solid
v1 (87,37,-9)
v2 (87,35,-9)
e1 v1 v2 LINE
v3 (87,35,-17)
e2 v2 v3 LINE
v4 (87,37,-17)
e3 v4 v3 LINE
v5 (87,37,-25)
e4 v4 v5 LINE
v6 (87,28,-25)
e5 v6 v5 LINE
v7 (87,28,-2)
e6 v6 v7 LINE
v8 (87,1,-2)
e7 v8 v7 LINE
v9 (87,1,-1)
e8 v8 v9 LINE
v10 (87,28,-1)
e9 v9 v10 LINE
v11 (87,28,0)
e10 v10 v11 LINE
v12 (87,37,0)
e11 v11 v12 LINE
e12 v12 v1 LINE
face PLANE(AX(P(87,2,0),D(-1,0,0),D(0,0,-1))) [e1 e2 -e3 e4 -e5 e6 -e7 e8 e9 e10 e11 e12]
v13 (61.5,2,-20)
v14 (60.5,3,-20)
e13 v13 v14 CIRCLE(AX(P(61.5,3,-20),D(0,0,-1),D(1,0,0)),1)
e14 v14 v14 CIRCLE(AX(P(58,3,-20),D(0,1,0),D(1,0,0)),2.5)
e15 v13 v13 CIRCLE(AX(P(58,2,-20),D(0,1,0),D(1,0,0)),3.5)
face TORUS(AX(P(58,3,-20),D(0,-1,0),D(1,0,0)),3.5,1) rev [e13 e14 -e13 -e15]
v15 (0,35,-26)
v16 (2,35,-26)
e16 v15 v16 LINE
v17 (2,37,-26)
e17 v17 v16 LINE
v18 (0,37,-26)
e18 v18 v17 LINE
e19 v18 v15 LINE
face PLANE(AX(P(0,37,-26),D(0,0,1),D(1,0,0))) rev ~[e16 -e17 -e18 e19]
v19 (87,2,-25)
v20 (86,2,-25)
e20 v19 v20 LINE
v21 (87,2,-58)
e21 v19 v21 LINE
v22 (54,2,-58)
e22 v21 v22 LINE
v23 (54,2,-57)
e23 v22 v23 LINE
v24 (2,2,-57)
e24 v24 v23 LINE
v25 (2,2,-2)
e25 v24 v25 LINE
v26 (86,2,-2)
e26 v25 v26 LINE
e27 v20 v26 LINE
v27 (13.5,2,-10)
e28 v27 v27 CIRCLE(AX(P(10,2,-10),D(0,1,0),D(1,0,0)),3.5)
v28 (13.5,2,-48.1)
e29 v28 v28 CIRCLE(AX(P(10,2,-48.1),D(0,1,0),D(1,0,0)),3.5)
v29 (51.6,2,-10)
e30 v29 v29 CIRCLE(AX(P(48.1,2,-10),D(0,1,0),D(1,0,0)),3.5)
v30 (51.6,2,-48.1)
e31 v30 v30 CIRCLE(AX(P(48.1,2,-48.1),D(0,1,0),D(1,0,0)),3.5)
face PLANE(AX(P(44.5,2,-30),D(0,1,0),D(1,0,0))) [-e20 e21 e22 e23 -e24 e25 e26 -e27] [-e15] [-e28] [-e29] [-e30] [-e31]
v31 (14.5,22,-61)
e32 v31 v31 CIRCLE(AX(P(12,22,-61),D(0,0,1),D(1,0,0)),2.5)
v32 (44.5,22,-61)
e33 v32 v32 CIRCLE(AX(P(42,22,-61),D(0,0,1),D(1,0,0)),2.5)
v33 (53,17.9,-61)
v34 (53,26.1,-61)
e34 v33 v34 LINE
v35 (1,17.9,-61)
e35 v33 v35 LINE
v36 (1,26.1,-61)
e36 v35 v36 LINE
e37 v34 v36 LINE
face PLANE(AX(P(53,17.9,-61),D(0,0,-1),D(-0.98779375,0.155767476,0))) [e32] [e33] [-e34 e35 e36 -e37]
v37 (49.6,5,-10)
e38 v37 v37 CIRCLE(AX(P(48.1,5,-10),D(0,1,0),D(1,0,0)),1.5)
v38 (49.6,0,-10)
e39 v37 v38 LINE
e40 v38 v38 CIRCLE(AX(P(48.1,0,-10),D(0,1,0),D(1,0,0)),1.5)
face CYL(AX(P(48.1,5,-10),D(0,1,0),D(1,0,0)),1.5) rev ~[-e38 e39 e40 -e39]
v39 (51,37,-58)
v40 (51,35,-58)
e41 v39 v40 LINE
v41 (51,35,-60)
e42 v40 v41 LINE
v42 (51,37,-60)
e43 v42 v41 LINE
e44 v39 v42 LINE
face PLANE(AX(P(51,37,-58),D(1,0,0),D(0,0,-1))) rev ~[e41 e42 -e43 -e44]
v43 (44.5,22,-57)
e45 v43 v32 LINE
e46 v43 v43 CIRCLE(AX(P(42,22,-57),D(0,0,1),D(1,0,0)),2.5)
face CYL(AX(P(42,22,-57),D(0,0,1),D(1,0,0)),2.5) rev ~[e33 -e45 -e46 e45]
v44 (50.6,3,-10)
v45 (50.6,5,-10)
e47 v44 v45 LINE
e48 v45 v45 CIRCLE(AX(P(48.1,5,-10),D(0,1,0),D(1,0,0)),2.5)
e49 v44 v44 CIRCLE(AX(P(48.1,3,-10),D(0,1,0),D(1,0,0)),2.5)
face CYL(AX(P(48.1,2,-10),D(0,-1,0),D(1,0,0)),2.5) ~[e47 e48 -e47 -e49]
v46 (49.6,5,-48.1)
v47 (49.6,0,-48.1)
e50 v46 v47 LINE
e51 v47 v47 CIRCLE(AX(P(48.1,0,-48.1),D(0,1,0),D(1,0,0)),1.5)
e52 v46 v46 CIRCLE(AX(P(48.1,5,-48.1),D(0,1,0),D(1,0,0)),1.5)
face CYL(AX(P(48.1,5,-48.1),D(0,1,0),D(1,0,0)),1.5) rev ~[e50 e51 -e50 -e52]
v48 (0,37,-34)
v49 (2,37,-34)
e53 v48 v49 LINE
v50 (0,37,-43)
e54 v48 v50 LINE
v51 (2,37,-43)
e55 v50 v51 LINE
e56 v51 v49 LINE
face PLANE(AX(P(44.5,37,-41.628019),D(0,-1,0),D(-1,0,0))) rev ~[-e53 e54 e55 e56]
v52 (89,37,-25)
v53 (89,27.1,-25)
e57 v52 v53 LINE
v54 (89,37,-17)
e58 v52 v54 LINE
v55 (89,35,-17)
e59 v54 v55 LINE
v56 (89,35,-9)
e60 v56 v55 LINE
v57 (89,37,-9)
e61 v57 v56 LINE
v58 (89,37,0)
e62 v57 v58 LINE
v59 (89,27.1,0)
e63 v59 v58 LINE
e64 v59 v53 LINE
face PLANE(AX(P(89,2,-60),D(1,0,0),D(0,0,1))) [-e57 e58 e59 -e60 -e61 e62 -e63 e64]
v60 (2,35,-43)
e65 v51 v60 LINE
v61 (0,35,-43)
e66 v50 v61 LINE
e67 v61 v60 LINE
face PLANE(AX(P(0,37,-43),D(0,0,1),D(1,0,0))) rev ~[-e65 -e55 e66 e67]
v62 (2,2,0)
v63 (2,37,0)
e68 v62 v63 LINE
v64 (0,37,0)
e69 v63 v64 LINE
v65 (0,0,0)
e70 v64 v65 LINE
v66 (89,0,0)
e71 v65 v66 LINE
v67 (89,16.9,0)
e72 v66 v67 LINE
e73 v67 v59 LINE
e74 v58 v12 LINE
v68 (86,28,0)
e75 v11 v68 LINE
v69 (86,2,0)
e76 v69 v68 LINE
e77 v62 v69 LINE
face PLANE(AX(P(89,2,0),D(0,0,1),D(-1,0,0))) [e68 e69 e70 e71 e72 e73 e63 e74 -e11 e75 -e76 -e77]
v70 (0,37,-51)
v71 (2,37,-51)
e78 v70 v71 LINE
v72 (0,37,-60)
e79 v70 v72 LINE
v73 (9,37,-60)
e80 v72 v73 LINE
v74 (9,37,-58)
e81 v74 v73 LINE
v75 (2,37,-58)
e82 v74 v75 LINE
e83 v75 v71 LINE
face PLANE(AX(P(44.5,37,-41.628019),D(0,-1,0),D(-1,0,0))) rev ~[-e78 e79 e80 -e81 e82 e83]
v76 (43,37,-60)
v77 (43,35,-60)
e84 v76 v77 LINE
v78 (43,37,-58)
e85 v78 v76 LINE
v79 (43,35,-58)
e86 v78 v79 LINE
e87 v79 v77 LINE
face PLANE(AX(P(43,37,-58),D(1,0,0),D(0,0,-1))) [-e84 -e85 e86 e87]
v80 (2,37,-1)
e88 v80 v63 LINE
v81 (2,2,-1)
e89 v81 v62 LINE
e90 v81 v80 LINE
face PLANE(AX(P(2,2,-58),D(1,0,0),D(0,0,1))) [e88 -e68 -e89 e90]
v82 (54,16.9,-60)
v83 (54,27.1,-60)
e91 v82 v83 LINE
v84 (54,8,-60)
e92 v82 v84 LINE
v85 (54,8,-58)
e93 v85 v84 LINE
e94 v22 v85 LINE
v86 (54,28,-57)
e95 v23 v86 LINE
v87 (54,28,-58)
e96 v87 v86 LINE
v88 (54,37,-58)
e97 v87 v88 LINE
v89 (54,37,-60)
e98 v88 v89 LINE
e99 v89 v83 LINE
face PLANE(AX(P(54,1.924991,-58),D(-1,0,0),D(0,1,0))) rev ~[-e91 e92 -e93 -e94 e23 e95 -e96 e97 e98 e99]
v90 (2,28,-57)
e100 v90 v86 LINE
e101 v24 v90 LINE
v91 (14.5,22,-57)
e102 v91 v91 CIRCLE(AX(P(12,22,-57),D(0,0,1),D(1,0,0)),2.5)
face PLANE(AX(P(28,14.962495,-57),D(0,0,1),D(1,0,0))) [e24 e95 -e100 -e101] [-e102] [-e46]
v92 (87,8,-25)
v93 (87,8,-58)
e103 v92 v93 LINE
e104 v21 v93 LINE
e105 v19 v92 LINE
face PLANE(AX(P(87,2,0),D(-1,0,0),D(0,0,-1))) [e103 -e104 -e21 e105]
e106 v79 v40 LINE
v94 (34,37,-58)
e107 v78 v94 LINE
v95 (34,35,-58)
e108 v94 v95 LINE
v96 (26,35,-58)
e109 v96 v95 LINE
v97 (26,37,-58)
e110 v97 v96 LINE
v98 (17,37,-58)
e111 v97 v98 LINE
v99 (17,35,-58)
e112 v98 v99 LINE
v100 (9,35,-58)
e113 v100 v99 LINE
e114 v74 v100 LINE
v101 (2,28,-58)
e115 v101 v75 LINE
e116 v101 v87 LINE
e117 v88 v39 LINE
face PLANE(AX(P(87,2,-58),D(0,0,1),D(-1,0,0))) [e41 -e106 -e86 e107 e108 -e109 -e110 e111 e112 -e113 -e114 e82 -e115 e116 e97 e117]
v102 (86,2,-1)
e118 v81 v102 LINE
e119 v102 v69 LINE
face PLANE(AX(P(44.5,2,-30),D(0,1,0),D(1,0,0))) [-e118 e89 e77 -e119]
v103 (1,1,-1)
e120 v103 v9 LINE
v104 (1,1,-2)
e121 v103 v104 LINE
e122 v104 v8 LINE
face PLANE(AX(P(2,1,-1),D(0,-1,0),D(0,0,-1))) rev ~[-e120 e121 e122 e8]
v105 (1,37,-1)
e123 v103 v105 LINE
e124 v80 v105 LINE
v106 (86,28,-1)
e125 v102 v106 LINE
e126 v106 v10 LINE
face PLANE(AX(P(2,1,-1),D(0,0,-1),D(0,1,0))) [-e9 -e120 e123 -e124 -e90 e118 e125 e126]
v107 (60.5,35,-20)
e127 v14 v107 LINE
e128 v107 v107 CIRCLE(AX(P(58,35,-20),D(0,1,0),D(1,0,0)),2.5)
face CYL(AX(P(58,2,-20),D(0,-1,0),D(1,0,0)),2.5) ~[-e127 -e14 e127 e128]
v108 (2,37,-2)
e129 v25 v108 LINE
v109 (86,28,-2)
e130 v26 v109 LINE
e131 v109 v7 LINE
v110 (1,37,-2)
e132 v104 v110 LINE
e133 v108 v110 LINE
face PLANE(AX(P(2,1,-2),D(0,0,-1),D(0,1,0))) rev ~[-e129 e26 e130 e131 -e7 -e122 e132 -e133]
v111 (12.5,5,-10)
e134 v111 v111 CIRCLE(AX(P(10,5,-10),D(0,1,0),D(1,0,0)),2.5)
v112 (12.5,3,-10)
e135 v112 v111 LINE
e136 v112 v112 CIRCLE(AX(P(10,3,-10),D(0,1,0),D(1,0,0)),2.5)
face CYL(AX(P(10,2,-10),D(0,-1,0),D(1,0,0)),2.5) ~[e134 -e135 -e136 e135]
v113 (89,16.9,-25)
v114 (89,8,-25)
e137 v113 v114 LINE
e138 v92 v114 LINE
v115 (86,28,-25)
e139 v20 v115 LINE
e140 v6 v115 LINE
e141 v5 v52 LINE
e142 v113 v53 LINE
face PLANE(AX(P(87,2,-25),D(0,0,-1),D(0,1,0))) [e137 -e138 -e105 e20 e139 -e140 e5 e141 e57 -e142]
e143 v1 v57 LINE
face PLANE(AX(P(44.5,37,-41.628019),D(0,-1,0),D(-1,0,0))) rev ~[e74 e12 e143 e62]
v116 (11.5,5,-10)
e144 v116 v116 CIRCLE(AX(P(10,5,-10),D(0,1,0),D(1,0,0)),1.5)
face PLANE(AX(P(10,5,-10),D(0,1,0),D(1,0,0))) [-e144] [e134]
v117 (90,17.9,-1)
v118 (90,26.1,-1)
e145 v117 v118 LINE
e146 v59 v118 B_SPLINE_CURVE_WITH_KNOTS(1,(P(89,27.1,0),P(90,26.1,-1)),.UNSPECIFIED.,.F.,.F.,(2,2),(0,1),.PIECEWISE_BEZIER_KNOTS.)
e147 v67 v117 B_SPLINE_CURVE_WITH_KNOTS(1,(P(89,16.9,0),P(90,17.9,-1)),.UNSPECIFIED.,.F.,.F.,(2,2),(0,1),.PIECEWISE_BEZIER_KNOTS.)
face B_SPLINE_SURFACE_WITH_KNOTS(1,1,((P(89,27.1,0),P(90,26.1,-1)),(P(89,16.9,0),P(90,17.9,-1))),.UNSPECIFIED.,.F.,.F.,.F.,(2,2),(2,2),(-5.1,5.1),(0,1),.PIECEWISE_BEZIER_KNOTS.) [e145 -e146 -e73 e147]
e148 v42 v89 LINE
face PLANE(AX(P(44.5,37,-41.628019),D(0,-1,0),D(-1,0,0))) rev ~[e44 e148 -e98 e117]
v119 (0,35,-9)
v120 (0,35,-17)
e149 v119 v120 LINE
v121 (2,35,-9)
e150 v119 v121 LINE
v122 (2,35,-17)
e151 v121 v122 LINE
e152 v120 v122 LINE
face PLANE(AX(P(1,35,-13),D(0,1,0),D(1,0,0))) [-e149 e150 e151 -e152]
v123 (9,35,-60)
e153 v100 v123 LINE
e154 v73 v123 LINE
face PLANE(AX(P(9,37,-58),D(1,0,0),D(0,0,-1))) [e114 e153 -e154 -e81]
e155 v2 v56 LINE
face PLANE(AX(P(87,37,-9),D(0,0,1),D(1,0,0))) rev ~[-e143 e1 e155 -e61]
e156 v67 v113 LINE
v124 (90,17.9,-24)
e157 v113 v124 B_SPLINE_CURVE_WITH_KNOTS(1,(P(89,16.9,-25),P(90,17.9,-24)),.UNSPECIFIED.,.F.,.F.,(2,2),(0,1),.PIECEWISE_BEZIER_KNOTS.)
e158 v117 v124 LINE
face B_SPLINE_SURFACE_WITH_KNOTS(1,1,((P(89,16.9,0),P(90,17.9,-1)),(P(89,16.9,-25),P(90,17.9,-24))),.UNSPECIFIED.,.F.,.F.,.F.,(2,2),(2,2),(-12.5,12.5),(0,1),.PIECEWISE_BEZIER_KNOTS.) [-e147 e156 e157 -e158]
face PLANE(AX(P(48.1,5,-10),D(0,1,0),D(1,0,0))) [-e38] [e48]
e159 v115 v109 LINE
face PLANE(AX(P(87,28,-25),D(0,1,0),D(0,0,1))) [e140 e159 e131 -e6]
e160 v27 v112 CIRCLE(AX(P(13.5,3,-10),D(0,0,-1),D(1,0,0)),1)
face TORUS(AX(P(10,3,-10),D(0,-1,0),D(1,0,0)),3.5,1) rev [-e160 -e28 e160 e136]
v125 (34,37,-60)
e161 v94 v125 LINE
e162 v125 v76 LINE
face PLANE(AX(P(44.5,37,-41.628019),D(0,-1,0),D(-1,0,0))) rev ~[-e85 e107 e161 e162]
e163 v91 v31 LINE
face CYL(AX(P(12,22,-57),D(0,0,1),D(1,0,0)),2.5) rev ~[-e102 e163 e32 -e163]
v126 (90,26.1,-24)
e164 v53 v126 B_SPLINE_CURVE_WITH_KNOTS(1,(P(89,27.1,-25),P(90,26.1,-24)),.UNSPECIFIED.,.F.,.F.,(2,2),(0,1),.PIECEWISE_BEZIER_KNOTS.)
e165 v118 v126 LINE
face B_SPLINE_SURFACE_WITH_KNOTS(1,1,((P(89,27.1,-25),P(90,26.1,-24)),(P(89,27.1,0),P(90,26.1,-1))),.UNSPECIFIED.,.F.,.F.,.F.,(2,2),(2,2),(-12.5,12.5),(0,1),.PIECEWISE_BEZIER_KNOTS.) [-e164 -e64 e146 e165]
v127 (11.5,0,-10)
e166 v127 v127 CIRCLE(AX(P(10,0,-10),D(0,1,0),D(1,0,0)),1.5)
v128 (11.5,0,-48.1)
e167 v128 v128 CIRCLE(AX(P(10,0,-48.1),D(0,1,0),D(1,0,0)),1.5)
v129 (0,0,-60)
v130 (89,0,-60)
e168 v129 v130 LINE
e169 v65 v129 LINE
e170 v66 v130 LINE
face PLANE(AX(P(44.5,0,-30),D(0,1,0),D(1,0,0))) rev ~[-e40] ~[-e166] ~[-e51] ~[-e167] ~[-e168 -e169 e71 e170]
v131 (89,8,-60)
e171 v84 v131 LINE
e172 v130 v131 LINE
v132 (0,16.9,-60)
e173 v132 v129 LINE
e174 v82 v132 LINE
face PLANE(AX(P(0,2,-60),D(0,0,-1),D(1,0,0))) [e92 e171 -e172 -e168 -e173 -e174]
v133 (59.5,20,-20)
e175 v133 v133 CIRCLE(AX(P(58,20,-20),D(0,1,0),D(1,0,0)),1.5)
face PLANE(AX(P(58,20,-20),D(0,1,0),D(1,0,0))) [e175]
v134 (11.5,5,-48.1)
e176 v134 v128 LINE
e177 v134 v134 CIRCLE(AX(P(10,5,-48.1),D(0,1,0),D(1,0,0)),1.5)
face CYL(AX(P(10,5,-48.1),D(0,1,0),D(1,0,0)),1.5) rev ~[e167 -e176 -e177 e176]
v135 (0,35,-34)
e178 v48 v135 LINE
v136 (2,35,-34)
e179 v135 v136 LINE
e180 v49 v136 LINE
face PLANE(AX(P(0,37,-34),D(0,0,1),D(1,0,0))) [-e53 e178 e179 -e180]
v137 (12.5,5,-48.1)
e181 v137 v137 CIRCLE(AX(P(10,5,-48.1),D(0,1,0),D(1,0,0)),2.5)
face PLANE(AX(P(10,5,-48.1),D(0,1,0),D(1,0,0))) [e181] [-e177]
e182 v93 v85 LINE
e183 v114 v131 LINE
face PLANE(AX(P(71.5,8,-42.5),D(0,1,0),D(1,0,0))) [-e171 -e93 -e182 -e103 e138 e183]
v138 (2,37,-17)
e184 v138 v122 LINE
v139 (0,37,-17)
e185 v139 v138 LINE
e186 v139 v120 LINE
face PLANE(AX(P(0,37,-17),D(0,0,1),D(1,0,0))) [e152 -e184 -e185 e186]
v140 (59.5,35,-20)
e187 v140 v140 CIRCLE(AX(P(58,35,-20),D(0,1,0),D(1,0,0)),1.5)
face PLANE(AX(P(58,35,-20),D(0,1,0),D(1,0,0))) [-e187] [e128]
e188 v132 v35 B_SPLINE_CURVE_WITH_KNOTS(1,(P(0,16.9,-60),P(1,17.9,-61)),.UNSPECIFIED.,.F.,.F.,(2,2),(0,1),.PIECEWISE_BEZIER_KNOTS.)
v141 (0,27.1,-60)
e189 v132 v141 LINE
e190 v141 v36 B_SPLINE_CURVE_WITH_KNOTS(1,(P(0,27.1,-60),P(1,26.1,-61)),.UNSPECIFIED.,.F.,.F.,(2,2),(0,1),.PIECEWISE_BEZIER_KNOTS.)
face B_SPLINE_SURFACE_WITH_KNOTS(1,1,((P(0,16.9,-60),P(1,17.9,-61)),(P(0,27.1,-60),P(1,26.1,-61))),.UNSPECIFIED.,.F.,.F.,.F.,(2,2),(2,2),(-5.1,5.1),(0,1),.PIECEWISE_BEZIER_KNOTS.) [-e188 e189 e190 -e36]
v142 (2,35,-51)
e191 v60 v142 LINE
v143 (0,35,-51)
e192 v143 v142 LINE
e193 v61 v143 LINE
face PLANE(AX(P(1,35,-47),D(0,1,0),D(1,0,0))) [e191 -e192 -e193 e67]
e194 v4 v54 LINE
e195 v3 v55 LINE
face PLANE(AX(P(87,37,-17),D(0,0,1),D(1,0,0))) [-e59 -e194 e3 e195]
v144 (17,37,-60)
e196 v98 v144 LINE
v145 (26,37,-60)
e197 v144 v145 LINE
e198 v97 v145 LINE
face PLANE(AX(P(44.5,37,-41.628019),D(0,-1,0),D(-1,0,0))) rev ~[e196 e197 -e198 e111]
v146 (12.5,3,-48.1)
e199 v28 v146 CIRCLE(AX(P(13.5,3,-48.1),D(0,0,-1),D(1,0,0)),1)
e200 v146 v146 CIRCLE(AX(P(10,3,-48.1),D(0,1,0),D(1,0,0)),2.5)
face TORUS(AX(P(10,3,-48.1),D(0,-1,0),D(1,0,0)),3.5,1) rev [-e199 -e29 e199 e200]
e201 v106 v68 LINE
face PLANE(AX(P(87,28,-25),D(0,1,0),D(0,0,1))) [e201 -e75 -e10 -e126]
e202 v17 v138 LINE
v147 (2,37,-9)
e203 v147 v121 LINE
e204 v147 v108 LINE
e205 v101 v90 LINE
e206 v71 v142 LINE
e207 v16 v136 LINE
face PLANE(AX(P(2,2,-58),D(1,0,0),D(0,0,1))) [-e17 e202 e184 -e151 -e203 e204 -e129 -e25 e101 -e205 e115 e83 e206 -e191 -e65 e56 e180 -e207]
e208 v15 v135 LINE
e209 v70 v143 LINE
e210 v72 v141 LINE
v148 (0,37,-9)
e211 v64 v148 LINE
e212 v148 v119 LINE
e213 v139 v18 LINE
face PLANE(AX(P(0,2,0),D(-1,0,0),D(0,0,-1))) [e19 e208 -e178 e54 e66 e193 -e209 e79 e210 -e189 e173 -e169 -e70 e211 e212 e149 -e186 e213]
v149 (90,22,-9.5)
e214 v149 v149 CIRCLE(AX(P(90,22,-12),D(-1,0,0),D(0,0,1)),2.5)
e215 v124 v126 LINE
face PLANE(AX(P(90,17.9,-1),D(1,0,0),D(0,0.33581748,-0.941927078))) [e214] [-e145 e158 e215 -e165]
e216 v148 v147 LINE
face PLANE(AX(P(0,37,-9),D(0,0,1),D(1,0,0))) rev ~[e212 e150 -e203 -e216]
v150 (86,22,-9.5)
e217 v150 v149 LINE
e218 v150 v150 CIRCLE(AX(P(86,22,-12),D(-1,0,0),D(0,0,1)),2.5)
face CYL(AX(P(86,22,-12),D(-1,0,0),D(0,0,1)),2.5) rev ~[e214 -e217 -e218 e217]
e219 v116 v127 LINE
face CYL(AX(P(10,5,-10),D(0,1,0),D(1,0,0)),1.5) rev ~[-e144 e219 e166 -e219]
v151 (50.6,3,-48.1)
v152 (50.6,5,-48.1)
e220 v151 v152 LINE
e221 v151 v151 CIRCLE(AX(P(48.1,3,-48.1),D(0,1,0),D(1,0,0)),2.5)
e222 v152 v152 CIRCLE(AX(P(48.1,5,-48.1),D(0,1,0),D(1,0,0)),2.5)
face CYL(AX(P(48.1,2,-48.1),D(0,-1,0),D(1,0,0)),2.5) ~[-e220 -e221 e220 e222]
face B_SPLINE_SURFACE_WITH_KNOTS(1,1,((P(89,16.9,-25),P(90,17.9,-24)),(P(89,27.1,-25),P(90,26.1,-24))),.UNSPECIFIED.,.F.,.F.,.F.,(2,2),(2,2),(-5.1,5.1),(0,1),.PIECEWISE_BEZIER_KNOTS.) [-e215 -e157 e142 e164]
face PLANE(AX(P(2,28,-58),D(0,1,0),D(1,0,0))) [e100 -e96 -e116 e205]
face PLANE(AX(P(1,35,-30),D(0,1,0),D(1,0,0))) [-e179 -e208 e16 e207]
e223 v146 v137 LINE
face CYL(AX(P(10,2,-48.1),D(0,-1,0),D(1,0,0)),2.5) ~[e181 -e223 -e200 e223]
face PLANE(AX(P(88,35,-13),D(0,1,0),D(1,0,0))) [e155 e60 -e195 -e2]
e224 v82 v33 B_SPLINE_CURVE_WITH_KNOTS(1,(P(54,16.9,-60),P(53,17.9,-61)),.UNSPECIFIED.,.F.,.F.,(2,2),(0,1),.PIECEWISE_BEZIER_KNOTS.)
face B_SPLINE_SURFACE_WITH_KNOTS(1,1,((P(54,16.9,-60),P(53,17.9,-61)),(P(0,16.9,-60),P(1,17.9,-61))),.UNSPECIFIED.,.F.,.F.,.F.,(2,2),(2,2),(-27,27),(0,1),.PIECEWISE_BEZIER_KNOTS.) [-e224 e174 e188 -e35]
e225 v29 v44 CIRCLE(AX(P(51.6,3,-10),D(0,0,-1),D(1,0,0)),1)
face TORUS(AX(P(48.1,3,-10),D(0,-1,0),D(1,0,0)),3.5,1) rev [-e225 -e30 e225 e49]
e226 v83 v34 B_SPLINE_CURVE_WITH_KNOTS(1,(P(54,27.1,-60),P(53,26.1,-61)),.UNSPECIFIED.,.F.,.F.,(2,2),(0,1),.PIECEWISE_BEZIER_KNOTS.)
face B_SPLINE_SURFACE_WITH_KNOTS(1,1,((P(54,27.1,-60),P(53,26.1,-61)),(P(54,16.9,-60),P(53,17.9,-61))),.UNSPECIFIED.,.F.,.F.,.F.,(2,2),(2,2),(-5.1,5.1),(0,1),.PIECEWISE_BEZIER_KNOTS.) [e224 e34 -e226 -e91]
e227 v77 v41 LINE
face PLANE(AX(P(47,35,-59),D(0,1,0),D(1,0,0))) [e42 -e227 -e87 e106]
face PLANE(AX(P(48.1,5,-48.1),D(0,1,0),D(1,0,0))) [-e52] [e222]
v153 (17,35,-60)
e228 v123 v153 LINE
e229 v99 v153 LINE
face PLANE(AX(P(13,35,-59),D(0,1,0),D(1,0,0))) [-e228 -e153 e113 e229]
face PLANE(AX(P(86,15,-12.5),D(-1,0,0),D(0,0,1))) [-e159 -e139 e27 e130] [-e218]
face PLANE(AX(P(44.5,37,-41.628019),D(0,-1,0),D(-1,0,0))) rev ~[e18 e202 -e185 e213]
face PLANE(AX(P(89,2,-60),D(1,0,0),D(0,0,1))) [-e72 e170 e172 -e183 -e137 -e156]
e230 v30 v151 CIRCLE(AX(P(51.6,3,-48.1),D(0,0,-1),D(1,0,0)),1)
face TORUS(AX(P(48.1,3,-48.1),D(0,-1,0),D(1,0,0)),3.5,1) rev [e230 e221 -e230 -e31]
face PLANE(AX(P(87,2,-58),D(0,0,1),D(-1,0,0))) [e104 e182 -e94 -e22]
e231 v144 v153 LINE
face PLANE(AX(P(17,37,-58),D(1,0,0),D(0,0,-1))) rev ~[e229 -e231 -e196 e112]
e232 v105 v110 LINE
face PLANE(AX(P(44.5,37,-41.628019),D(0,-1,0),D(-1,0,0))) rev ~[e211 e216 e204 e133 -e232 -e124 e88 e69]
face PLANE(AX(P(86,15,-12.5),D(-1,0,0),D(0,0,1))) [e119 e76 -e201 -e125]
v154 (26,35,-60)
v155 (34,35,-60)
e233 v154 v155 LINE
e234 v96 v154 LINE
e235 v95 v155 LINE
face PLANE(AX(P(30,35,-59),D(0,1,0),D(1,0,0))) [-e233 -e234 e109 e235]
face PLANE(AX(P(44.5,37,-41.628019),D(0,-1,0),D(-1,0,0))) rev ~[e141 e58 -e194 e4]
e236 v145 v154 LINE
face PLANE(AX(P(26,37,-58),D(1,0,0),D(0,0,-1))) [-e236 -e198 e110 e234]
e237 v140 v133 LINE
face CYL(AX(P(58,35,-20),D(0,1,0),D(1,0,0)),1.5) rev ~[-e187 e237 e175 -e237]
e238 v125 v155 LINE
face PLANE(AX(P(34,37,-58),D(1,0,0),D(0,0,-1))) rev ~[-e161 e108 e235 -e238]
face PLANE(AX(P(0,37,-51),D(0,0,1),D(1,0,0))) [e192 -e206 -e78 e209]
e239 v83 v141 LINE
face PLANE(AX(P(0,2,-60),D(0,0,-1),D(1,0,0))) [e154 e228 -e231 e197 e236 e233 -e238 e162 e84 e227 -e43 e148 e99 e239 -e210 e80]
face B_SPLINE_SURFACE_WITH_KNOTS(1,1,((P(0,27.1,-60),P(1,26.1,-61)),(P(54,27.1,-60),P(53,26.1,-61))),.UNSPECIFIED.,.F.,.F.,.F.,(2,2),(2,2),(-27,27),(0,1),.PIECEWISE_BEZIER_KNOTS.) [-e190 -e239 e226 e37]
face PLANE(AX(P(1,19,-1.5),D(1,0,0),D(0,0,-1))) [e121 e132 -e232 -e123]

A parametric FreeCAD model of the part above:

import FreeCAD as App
import Part
import Sketcher

V = App.Vector
Q = App.Units.Quantity


def edges_at(feature, points):
    """Names of the edges that pass closest to the given points."""
    edges = feature.Shape.Edges
    near = lambda p: min(range(len(edges)), key=lambda i: edges[i].distToShape(Part.Vertex(*p))[0])
    return sorted({f"Edge{near(p) + 1}" for p in points})

doc = App.newDocument("Part")
body = doc.addObject("PartDesign::Body", "Body")

# Sketch on XZ plane
sketch1 = body.newObject("Sketcher::SketchObject", "Sketch")
sketch1.AttachmentSupport = (doc.getObject("XZ_Plane"), [""])
sketch1.MapMode = "FlatFace"
sketch1.addGeometry([
    Part.LineSegment(V(0, -60, 0), V(0, 0, 0)),
    Part.LineSegment(V(0, 0, 0), V(89, 0, 0)),
    Part.LineSegment(V(89, 0, 0), V(89, -60, 0)),
    Part.LineSegment(V(89, -60, 0), V(0, -60, 0)),
], False)
sketch1.addConstraint([
    Sketcher.Constraint("Coincident", 0, 2, 1, 1),
    Sketcher.Constraint("Coincident", 1, 2, 2, 1),
    Sketcher.Constraint("Coincident", 2, 2, 3, 1),
    Sketcher.Constraint("Coincident", 3, 2, 0, 1),
    Sketcher.Constraint("Vertical", 0),
    Sketcher.Constraint("Horizontal", 1),
    Sketcher.Constraint("Vertical", 2),
    Sketcher.Constraint("Horizontal", 3),
    Sketcher.Constraint("Coincident", 0, 2, -1, 1),
    Sketcher.Constraint("DistanceX", 1, 1, 1, 2, Q("89 mm")),
    Sketcher.Constraint("DistanceY", 0, 1, 0, 2, Q("60 mm")),
])
pad1 = body.newObject("PartDesign::Pad", "Pad")
pad1.Profile = sketch1
pad1.Length = 2
pad1.Reversed = True

# Sketch on XZ plane
sketch2 = body.newObject("Sketcher::SketchObject", "Sketch001")
sketch2.AttachmentSupport = (doc.getObject("XZ_Plane"), [""])
sketch2.MapMode = "FlatFace"
sketch2.AttachmentOffset = App.Placement(V(0, 0, -2), App.Rotation())
sketch2.addGeometry([
    Part.Circle(V(10, -10, 0), V(0, 0, 1), 2.5),
    Part.Circle(V(48.1, -10, 0), V(0, 0, 1), 2.5),
    Part.Circle(V(48.1, -48.1, 0), V(0, 0, 1), 2.5),
    Part.Circle(V(10, -48.1, 0), V(0, 0, 1), 2.5),
], False)
sketch2.addConstraint([
    Sketcher.Constraint("Equal", 0, 1),
    Sketcher.Constraint("Equal", 1, 2),
    Sketcher.Constraint("Equal", 2, 3),
    Sketcher.Constraint("Horizontal", 0, 3, 1, 3),
    Sketcher.Constraint("Horizontal", 2, 3, 3, 3),
    Sketcher.Constraint("Vertical", 1, 3, 2, 3),
    Sketcher.Constraint("Vertical", 0, 3, 3, 3),
    Sketcher.Constraint("Diameter", 0, Q("5 mm")),
    Sketcher.Constraint("DistanceX", -1, 1, 0, 3, Q("10 mm")),
    Sketcher.Constraint("DistanceY", 0, 3, -1, 1, Q("10 mm")),
    Sketcher.Constraint("DistanceX", -1, 1, 1, 3, Q("48.1 mm")),
    Sketcher.Constraint("DistanceY", 2, 3, -1, 1, Q("48.1 mm")),
])
pad2 = body.newObject("PartDesign::Pad", "Pad001")
pad2.Profile = sketch2
pad2.Length = 3
pad2.Reversed = True

# Sketch on XZ plane
sketch3 = body.newObject("Sketcher::SketchObject", "Sketch002")
sketch3.AttachmentSupport = (doc.getObject("XZ_Plane"), [""])
sketch3.MapMode = "FlatFace"
sketch3.AttachmentOffset = App.Placement(V(0, 0, -5), App.Rotation())
sketch3.addGeometry([
    Part.Circle(V(48.1, -10, 0), V(0, 0, 1), 1.5),
    Part.Circle(V(10, -10, 0), V(0, 0, 1), 1.5),
    Part.Circle(V(10, -48.1, 0), V(0, 0, 1), 1.5),
    Part.Circle(V(48.1, -48.1, 0), V(0, 0, 1), 1.5),
], False)
sketch3.addConstraint([
    Sketcher.Constraint("Equal", 0, 1),
    Sketcher.Constraint("Equal", 1, 2),
    Sketcher.Constraint("Equal", 2, 3),
    Sketcher.Constraint("Horizontal", 0, 3, 1, 3),
    Sketcher.Constraint("Horizontal", 2, 3, 3, 3),
    Sketcher.Constraint("Vertical", 1, 3, 2, 3),
    Sketcher.Constraint("Vertical", 0, 3, 3, 3),
    Sketcher.Constraint("Diameter", 0, Q("3 mm")),
    Sketcher.Constraint("DistanceY", 0, 3, -1, 1, Q("10 mm")),
    Sketcher.Constraint("DistanceX", -1, 1, 1, 3, Q("10 mm")),
    Sketcher.Constraint("DistanceX", -1, 1, 0, 3, Q("48.1 mm")),
    Sketcher.Constraint("DistanceY", 2, 3, -1, 1, Q("48.1 mm")),
])
pocket1 = body.newObject("PartDesign::Pocket", "Pocket")
pocket1.Profile = sketch3
pocket1.Type = "ThroughAll"
pocket1.Reversed = True

# Sketch on XZ plane
sketch4 = body.newObject("Sketcher::SketchObject", "Sketch003")
sketch4.AttachmentSupport = (doc.getObject("XZ_Plane"), [""])
sketch4.MapMode = "FlatFace"
sketch4.AttachmentOffset = App.Placement(V(0, 0, -2), App.Rotation())
sketch4.addGeometry(Part.Circle(V(58, -20, 0), V(0, 0, 1), 2.5), False)
sketch4.addConstraint([
    Sketcher.Constraint("Diameter", 0, Q("5 mm")),
    Sketcher.Constraint("DistanceX", -1, 1, 0, 3, Q("58 mm")),
    Sketcher.Constraint("DistanceY", 0, 3, -1, 1, Q("20 mm")),
])
pad3 = body.newObject("PartDesign::Pad", "Pad002")
pad3.Profile = sketch4
pad3.Length = 33
pad3.Reversed = True

# Sketch on XZ plane
sketch5 = body.newObject("Sketcher::SketchObject", "Sketch004")
sketch5.AttachmentSupport = (doc.getObject("XZ_Plane"), [""])
sketch5.MapMode = "FlatFace"
sketch5.AttachmentOffset = App.Placement(V(0, 0, -35), App.Rotation())
sketch5.addGeometry(Part.Circle(V(58, -20, 0), V(0, 0, 1), 1.5), False)
sketch5.addConstraint([
    Sketcher.Constraint("Diameter", 0, Q("3 mm")),
    Sketcher.Constraint("DistanceX", -1, 1, 0, 3, Q("58 mm")),
    Sketcher.Constraint("DistanceY", 0, 3, -1, 1, Q("20 mm")),
])
pocket2 = body.newObject("PartDesign::Pocket", "Pocket001")
pocket2.Profile = sketch5
pocket2.Length = 15
pocket2.Reversed = True
doc.recompute()

fillet = body.newObject("PartDesign::Fillet", "Fillet")
fillet.Base = (pocket2, edges_at(pocket2, [
    (7.5, 2, -10),
    (45.6, 2, -10),
    (45.6, 2, -48.1),
    (7.5, 2, -48.1),
    (55.5, 2, -20),
]))
fillet.Radius = 1

# Sketch on XZ plane
sketch6 = body.newObject("Sketcher::SketchObject", "Sketch005")
sketch6.AttachmentSupport = (doc.getObject("XZ_Plane"), [""])
sketch6.MapMode = "FlatFace"
sketch6.AttachmentOffset = App.Placement(V(0, 0, -2), App.Rotation())
sketch6.addGeometry([
    Part.LineSegment(V(87, -58, 0), V(87, 0, 0)),  # 0
    Part.LineSegment(V(87, 0, 0), V(89, 0, 0)),  # 1
    Part.LineSegment(V(89, 0, 0), V(89, -60, 0)),  # 2
    Part.LineSegment(V(89, -60, 0), V(0, -60, 0)),  # 3
    Part.LineSegment(V(0, -60, 0), V(0, 0, 0)),  # 4
    Part.LineSegment(V(0, 0, 0), V(2, 0, 0)),  # 5
    Part.LineSegment(V(2, 0, 0), V(2, -58, 0)),  # 6
    Part.LineSegment(V(2, -58, 0), V(87, -58, 0)),  # 7
], False)
sketch6.addConstraint([
    Sketcher.Constraint("Coincident", 0, 2, 1, 1),
    Sketcher.Constraint("Coincident", 1, 2, 2, 1),
    Sketcher.Constraint("Coincident", 2, 2, 3, 1),
    Sketcher.Constraint("Coincident", 3, 2, 4, 1),
    Sketcher.Constraint("Coincident", 4, 2, 5, 1),
    Sketcher.Constraint("Coincident", 5, 2, 6, 1),
    Sketcher.Constraint("Coincident", 6, 2, 7, 1),
    Sketcher.Constraint("Coincident", 7, 2, 0, 1),
    Sketcher.Constraint("Vertical", 0),
    Sketcher.Constraint("Horizontal", 1),
    Sketcher.Constraint("Vertical", 2),
    Sketcher.Constraint("Horizontal", 3),
    Sketcher.Constraint("Vertical", 4),
    Sketcher.Constraint("Horizontal", 5),
    Sketcher.Constraint("Vertical", 6),
    Sketcher.Constraint("Horizontal", 7),
    Sketcher.Constraint("Coincident", 4, 2, -1, 1),
    Sketcher.Constraint("PointOnObject", 0, 2, -1),
    Sketcher.Constraint("Equal", 1, 5),
    Sketcher.Constraint("DistanceX", 1, 1, 1, 2, Q("2 mm")),
    Sketcher.Constraint("DistanceX", 3, 2, 3, 1, Q("89 mm")),
    Sketcher.Constraint("DistanceY", 0, 1, 0, 2, Q("58 mm")),
    Sketcher.Constraint("DistanceY", 2, 2, 2, 1, Q("60 mm")),
])
pad4 = body.newObject("PartDesign::Pad", "Pad003")
pad4.Profile = sketch6
pad4.Length = 35
pad4.Reversed = True

# Sketch on XZ plane
sketch7 = body.newObject("Sketcher::SketchObject", "Sketch006")
sketch7.AttachmentSupport = (doc.getObject("XZ_Plane"), [""])
sketch7.MapMode = "FlatFace"
sketch7.AttachmentOffset = App.Placement(V(0, 0, -37), App.Rotation())
sketch7.addGeometry([
    Part.LineSegment(V(54, -60, 0), V(54, -25, 0)),
    Part.LineSegment(V(54, -25, 0), V(89, -25, 0)),
    Part.LineSegment(V(89, -25, 0), V(89, -60, 0)),
    Part.LineSegment(V(89, -60, 0), V(54, -60, 0)),
], False)
sketch7.addConstraint([
    Sketcher.Constraint("Coincident", 0, 2, 1, 1),
    Sketcher.Constraint("Coincident", 1, 2, 2, 1),
    Sketcher.Constraint("Coincident", 2, 2, 3, 1),
    Sketcher.Constraint("Coincident", 3, 2, 0, 1),
    Sketcher.Constraint("Vertical", 0),
    Sketcher.Constraint("Horizontal", 1),
    Sketcher.Constraint("Vertical", 2),
    Sketcher.Constraint("Horizontal", 3),
    Sketcher.Constraint("Equal", 3, 0),
    Sketcher.Constraint("DistanceX", 1, 1, 1, 2, Q("35 mm")),
    Sketcher.Constraint("DistanceX", -1, 1, 0, 2, Q("54 mm")),
    Sketcher.Constraint("DistanceY", 0, 2, -1, 1, Q("25 mm")),
])
pocket3 = body.newObject("PartDesign::Pocket", "Pocket002")
pocket3.Profile = sketch7
pocket3.Length = 29
pocket3.Reversed = True

# Sketch on YZ plane
sketch8 = body.newObject("Sketcher::SketchObject", "Sketch007")
sketch8.AttachmentSupport = (doc.getObject("YZ_Plane"), [""])
sketch8.MapMode = "FlatFace"
sketch8.AttachmentOffset = App.Placement(V(0, 0, 87), App.Rotation())
sketch8.addGeometry([
    Part.LineSegment(V(28, -25, 0), V(2, -25, 0)),
    Part.LineSegment(V(2, -25, 0), V(2, 0, 0)),
    Part.LineSegment(V(2, 0, 0), V(28, 0, 0)),
    Part.LineSegment(V(28, 0, 0), V(28, -25, 0)),
], False)
sketch8.addConstraint([
    Sketcher.Constraint("Coincident", 0, 2, 1, 1),
    Sketcher.Constraint("Coincident", 1, 2, 2, 1),
    Sketcher.Constraint("Coincident", 2, 2, 3, 1),
    Sketcher.Constraint("Coincident", 3, 2, 0, 1),
    Sketcher.Constraint("Horizontal", 0),
    Sketcher.Constraint("Vertical", 1),
    Sketcher.Constraint("Horizontal", 2),
    Sketcher.Constraint("Vertical", 3),
    Sketcher.Constraint("PointOnObject", 1, 2, -1),
    Sketcher.Constraint("DistanceX", 0, 2, 0, 1, Q("26 mm")),
    Sketcher.Constraint("DistanceY", 1, 1, 1, 2, Q("25 mm")),
    Sketcher.Constraint("DistanceX", -1, 1, 0, 2, Q("2 mm")),
])
pad5 = body.newObject("PartDesign::Pad", "Pad004")
pad5.Profile = sketch8
pad5.Length = 1
pad5.Reversed = True

# Sketch on YZ plane
sketch9 = body.newObject("Sketcher::SketchObject", "Sketch008")
sketch9.AttachmentSupport = (doc.getObject("YZ_Plane"), [""])
sketch9.MapMode = "FlatFace"
sketch9.AttachmentOffset = App.Placement(V(0, 0, 89), App.Rotation())
sketch9.addGeometry([
    Part.LineSegment(V(27, 0, 0), V(17, 0, 0)),
    Part.LineSegment(V(17, 0, 0), V(17, -25, 0)),
    Part.LineSegment(V(17, -25, 0), V(27, -25, 0)),
    Part.LineSegment(V(27, -25, 0), V(27, 0, 0)),
], False)
sketch9.addConstraint([
    Sketcher.Constraint("Coincident", 0, 2, 1, 1),
    Sketcher.Constraint("Coincident", 1, 2, 2, 1),
    Sketcher.Constraint("Coincident", 2, 2, 3, 1),
    Sketcher.Constraint("Coincident", 3, 2, 0, 1),
    Sketcher.Constraint("Horizontal", 0),
    Sketcher.Constraint("Vertical", 1),
    Sketcher.Constraint("Horizontal", 2),
    Sketcher.Constraint("Vertical", 3),
    Sketcher.Constraint("PointOnObject", 0, 2, -1),
    Sketcher.Constraint("DistanceY", 1, 2, 1, 1, Q("25 mm")),
    Sketcher.Constraint("DistanceX", 0, 2, 0, 1, Q("10.2 mm")),
    Sketcher.Constraint("DistanceX", -1, 1, 0, 2, Q("16.9 mm")),
])
pad6 = body.newObject("PartDesign::Pad", "Pad005")
pad6.Profile = sketch9
pad6.Length = 1
pad6.TaperAngle = -45

# Sketch on YZ plane
sketch10 = body.newObject("Sketcher::SketchObject", "Sketch009")
sketch10.AttachmentSupport = (doc.getObject("YZ_Plane"), [""])
sketch10.MapMode = "FlatFace"
sketch10.AttachmentOffset = App.Placement(V(0, 0, 86), App.Rotation())
sketch10.addGeometry(Part.Circle(V(22, -12, 0), V(0, 0, 1), 2.5), False)
sketch10.addConstraint([
    Sketcher.Constraint("Diameter", 0, Q("5 mm")),
    Sketcher.Constraint("DistanceX", -1, 1, 0, 3, Q("22 mm")),
    Sketcher.Constraint("DistanceY", 0, 3, -1, 1, Q("12 mm")),
])
pocket4 = body.newObject("PartDesign::Pocket", "Pocket003")
pocket4.Profile = sketch10
pocket4.Type = "ThroughAll"
pocket4.Reversed = True

# Sketch on XY plane
sketch11 = body.newObject("Sketcher::SketchObject", "Sketch010")
sketch11.AttachmentSupport = (doc.getObject("XY_Plane"), [""])
sketch11.MapMode = "FlatFace"
sketch11.AttachmentOffset = App.Placement(V(0, 0, -58), App.Rotation())
sketch11.addGeometry([
    Part.LineSegment(V(2, 28, 0), V(2, 2, 0)),
    Part.LineSegment(V(2, 2, 0), V(54, 2, 0)),
    Part.LineSegment(V(54, 2, 0), V(54, 28, 0)),
    Part.LineSegment(V(54, 28, 0), V(2, 28, 0)),
], False)
sketch11.addConstraint([
    Sketcher.Constraint("Coincident", 0, 2, 1, 1),
    Sketcher.Constraint("Coincident", 1, 2, 2, 1),
    Sketcher.Constraint("Coincident", 2, 2, 3, 1),
    Sketcher.Constraint("Coincident", 3, 2, 0, 1),
    Sketcher.Constraint("Vertical", 0),
    Sketcher.Constraint("Horizontal", 1),
    Sketcher.Constraint("Vertical", 2),
    Sketcher.Constraint("Horizontal", 3),
    Sketcher.Constraint("DistanceX", 1, 1, 1, 2, Q("52 mm")),
    Sketcher.Constraint("DistanceX", -1, 1, 0, 2, Q("2 mm")),
    Sketcher.Constraint("DistanceY", -1, 1, 2, 2, Q("28 mm")),
    Sketcher.Constraint("DistanceY", 0, 2, 0, 1, Q("26.075009 mm")),
])
pad7 = body.newObject("PartDesign::Pad", "Pad006")
pad7.Profile = sketch11
pad7.Length = 1

# Sketch on XY plane
sketch12 = body.newObject("Sketcher::SketchObject", "Sketch011")
sketch12.AttachmentSupport = (doc.getObject("XY_Plane"), [""])
sketch12.MapMode = "FlatFace"
sketch12.AttachmentOffset = App.Placement(V(0, 0, -60), App.Rotation())
sketch12.addGeometry([
    Part.LineSegment(V(54, 27, 0), V(54, 17, 0)),
    Part.LineSegment(V(54, 17, 0), V(0, 17, 0)),
    Part.LineSegment(V(0, 17, 0), V(0, 27, 0)),
    Part.LineSegment(V(0, 27, 0), V(54, 27, 0)),
], False)
sketch12.addConstraint([
    Sketcher.Constraint("Coincident", 0, 2, 1, 1),
    Sketcher.Constraint("Coincident", 1, 2, 2, 1),
    Sketcher.Constraint("Coincident", 2, 2, 3, 1),
    Sketcher.Constraint("Coincident", 3, 2, 0, 1),
    Sketcher.Constraint("Vertical", 0),
    Sketcher.Constraint("Horizontal", 1),
    Sketcher.Constraint("Vertical", 2),
    Sketcher.Constraint("Horizontal", 3),
    Sketcher.Constraint("PointOnObject", 1, 2, -2),
    Sketcher.Constraint("DistanceX", 1, 2, 1, 1, Q("54 mm")),
    Sketcher.Constraint("DistanceY", 0, 2, 0, 1, Q("10.2 mm")),
    Sketcher.Constraint("DistanceY", -1, 1, 0, 2, Q("16.9 mm")),
])
pad8 = body.newObject("PartDesign::Pad", "Pad007")
pad8.Profile = sketch12
pad8.Length = 1
pad8.Reversed = True
pad8.TaperAngle = -45

# Sketch on XY plane
sketch13 = body.newObject("Sketcher::SketchObject", "Sketch012")
sketch13.AttachmentSupport = (doc.getObject("XY_Plane"), [""])
sketch13.MapMode = "FlatFace"
sketch13.AttachmentOffset = App.Placement(V(0, 0, -57), App.Rotation())
sketch13.addGeometry([
    Part.Circle(V(12, 22, 0), V(0, 0, 1), 2.5),
    Part.Circle(V(42, 22, 0), V(0, 0, 1), 2.5),
], False)
sketch13.addConstraint([
    Sketcher.Constraint("Equal", 0, 1),
    Sketcher.Constraint("Horizontal", 0, 3, 1, 3),
    Sketcher.Constraint("Diameter", 0, Q("5 mm")),
    Sketcher.Constraint("DistanceX", -1, 1, 0, 3, Q("12 mm")),
    Sketcher.Constraint("DistanceY", -1, 1, 0, 3, Q("22 mm")),
    Sketcher.Constraint("DistanceX", -1, 1, 1, 3, Q("42 mm")),
])
pocket5 = body.newObject("PartDesign::Pocket", "Pocket004")
pocket5.Profile = sketch13
pocket5.Type = "ThroughAll"

# Sketch on XZ plane
sketch14 = body.newObject("Sketcher::SketchObject", "Sketch013")
sketch14.AttachmentSupport = (doc.getObject("XZ_Plane"), [""])
sketch14.MapMode = "FlatFace"
sketch14.AttachmentOffset = App.Placement(V(0, 0, -2), App.Rotation())
sketch14.addGeometry([
    Part.LineSegment(V(2, -2, 0), V(2, -1, 0)),
    Part.LineSegment(V(2, -1, 0), V(86, -1, 0)),
    Part.LineSegment(V(86, -1, 0), V(86, -2, 0)),
    Part.LineSegment(V(86, -2, 0), V(2, -2, 0)),
], False)
sketch14.addConstraint([
    Sketcher.Constraint("Coincident", 0, 2, 1, 1),
    Sketcher.Constraint("Coincident", 1, 2, 2, 1),
    Sketcher.Constraint("Coincident", 2, 2, 3, 1),
    Sketcher.Constraint("Coincident", 3, 2, 0, 1),
    Sketcher.Constraint("Vertical", 0),
    Sketcher.Constraint("Horizontal", 1),
    Sketcher.Constraint("Vertical", 2),
    Sketcher.Constraint("Horizontal", 3),
    Sketcher.Constraint("DistanceX", 1, 1, 1, 2, Q("84 mm")),
    Sketcher.Constraint("DistanceY", 0, 1, 0, 2, Q("1 mm")),
    Sketcher.Constraint("DistanceX", -1, 1, 0, 2, Q("2 mm")),
    Sketcher.Constraint("DistanceY", 0, 2, -1, 1, Q("1 mm")),
])
pocket6 = body.newObject("PartDesign::Pocket", "Pocket005")
pocket6.Profile = sketch14
pocket6.Length = 1
pocket6.Reversed = True

# Sketch on YZ plane
sketch15 = body.newObject("Sketcher::SketchObject", "Sketch014")
sketch15.AttachmentSupport = (doc.getObject("YZ_Plane"), [""])
sketch15.MapMode = "FlatFace"
sketch15.AttachmentOffset = App.Placement(V(0, 0, 2), App.Rotation())
sketch15.addGeometry([
    Part.LineSegment(V(37, -1, 0), V(1, -1, 0)),
    Part.LineSegment(V(1, -1, 0), V(1, -2, 0)),
    Part.LineSegment(V(1, -2, 0), V(37, -2, 0)),
    Part.LineSegment(V(37, -2, 0), V(37, -1, 0)),
], False)
sketch15.addConstraint([
    Sketcher.Constraint("Coincident", 0, 2, 1, 1),
    Sketcher.Constraint("Coincident", 1, 2, 2, 1),
    Sketcher.Constraint("Coincident", 2, 2, 3, 1),
    Sketcher.Constraint("Coincident", 3, 2, 0, 1),
    Sketcher.Constraint("Horizontal", 0),
    Sketcher.Constraint("Vertical", 1),
    Sketcher.Constraint("Horizontal", 2),
    Sketcher.Constraint("Vertical", 3),
    Sketcher.Constraint("DistanceX", 0, 2, 0, 1, Q("36 mm")),
    Sketcher.Constraint("DistanceY", 1, 2, 1, 1, Q("1 mm")),
    Sketcher.Constraint("DistanceX", -1, 1, 0, 2, Q("1 mm")),
    Sketcher.Constraint("DistanceY", 0, 2, -1, 1, Q("1 mm")),
])
pocket7 = body.newObject("PartDesign::Pocket", "Pocket006")
pocket7.Profile = sketch15
pocket7.Length = 1

# Sketch on YZ plane
sketch16 = body.newObject("Sketcher::SketchObject", "Sketch015")
sketch16.AttachmentSupport = (doc.getObject("YZ_Plane"), [""])
sketch16.MapMode = "FlatFace"
sketch16.AttachmentOffset = App.Placement(V(0, 0, 86), App.Rotation())
sketch16.addGeometry([
    Part.LineSegment(V(28, -2, 0), V(1, -2, 0)),
    Part.LineSegment(V(1, -2, 0), V(1, -1, 0)),
    Part.LineSegment(V(1, -1, 0), V(28, -1, 0)),
    Part.LineSegment(V(28, -1, 0), V(28, -2, 0)),
], False)
sketch16.addConstraint([
    Sketcher.Constraint("Coincident", 0, 2, 1, 1),
    Sketcher.Constraint("Coincident", 1, 2, 2, 1),
    Sketcher.Constraint("Coincident", 2, 2, 3, 1),
    Sketcher.Constraint("Coincident", 3, 2, 0, 1),
    Sketcher.Constraint("Horizontal", 0),
    Sketcher.Constraint("Vertical", 1),
    Sketcher.Constraint("Horizontal", 2),
    Sketcher.Constraint("Vertical", 3),
    Sketcher.Constraint("DistanceX", 0, 2, 0, 1, Q("27 mm")),
    Sketcher.Constraint("DistanceY", 1, 1, 1, 2, Q("1 mm")),
    Sketcher.Constraint("DistanceX", -1, 1, 0, 2, Q("1 mm")),
    Sketcher.Constraint("DistanceY", 0, 2, -1, 1, Q("2 mm")),
])
pocket8 = body.newObject("PartDesign::Pocket", "Pocket007")
pocket8.Profile = sketch16
pocket8.Length = 1
pocket8.Reversed = True

# Sketch on XZ plane
sketch17 = body.newObject("Sketcher::SketchObject", "Sketch016")
sketch17.AttachmentSupport = (doc.getObject("XZ_Plane"), [""])
sketch17.MapMode = "FlatFace"
sketch17.AttachmentOffset = App.Placement(V(0, 0, -37), App.Rotation())
sketch17.addGeometry([
    Part.LineSegment(V(87, -17, 0), V(87, -9, 0)),
    Part.LineSegment(V(87, -9, 0), V(89, -9, 0)),
    Part.LineSegment(V(89, -9, 0), V(89, -17, 0)),
    Part.LineSegment(V(89, -17, 0), V(87, -17, 0)),
], False)
sketch17.addConstraint([
    Sketcher.Constraint("Coincident", 0, 2, 1, 1),
    Sketcher.Constraint("Coincident", 1, 2, 2, 1),
    Sketcher.Constraint("Coincident", 2, 2, 3, 1),
    Sketcher.Constraint("Coincident", 3, 2, 0, 1),
    Sketcher.Constraint("Vertical", 0),
    Sketcher.Constraint("Horizontal", 1),
    Sketcher.Constraint("Vertical", 2),
    Sketcher.Constraint("Horizontal", 3),
    Sketcher.Constraint("DistanceX", 1, 1, 1, 2, Q("2 mm")),
    Sketcher.Constraint("DistanceY", 0, 1, 0, 2, Q("8 mm")),
    Sketcher.Constraint("DistanceX", -1, 1, 0, 2, Q("87 mm")),
    Sketcher.Constraint("DistanceY", 0, 2, -1, 1, Q("9 mm")),
])
pocket9 = body.newObject("PartDesign::Pocket", "Pocket008")
pocket9.Profile = sketch17
pocket9.Length = 2
pocket9.Reversed = True

# Sketch on XZ plane
sketch18 = body.newObject("Sketcher::SketchObject", "Sketch017")
sketch18.AttachmentSupport = (doc.getObject("XZ_Plane"), [""])
sketch18.MapMode = "FlatFace"
sketch18.AttachmentOffset = App.Placement(V(0, 0, -37), App.Rotation())
sketch18.addGeometry([
    Part.LineSegment(V(0, -17, 0), V(0, -9, 0)),  # 0
    Part.LineSegment(V(0, -9, 0), V(2, -9, 0)),  # 1
    Part.LineSegment(V(2, -9, 0), V(2, -17, 0)),  # 2
    Part.LineSegment(V(2, -17, 0), V(0, -17, 0)),  # 3
    Part.LineSegment(V(0, -34, 0), V(0, -26, 0)),  # 4
    Part.LineSegment(V(0, -26, 0), V(2, -26, 0)),  # 5
    Part.LineSegment(V(2, -26, 0), V(2, -34, 0)),  # 6
    Part.LineSegment(V(2, -34, 0), V(0, -34, 0)),  # 7
    Part.LineSegment(V(0, -51, 0), V(0, -43, 0)),  # 8
    Part.LineSegment(V(0, -43, 0), V(2, -43, 0)),  # 9
    Part.LineSegment(V(2, -43, 0), V(2, -51, 0)),  # 10
    Part.LineSegment(V(2, -51, 0), V(0, -51, 0)),  # 11
    Part.LineSegment(V(9, -60, 0), V(9, -58, 0)),  # 12
    Part.LineSegment(V(9, -58, 0), V(17, -58, 0)),  # 13
    Part.LineSegment(V(17, -58, 0), V(17, -60, 0)),  # 14
    Part.LineSegment(V(17, -60, 0), V(9, -60, 0)),  # 15
    Part.LineSegment(V(26, -60, 0), V(26, -58, 0)),  # 16
    Part.LineSegment(V(26, -58, 0), V(34, -58, 0)),  # 17
    Part.LineSegment(V(34, -58, 0), V(34, -60, 0)),  # 18
    Part.LineSegment(V(34, -60, 0), V(26, -60, 0)),  # 19
    Part.LineSegment(V(43, -60, 0), V(43, -58, 0)),  # 20
    Part.LineSegment(V(43, -58, 0), V(51, -58, 0)),  # 21
    Part.LineSegment(V(51, -58, 0), V(51, -60, 0)),  # 22
    Part.LineSegment(V(51, -60, 0), V(43, -60, 0)),  # 23
], False)
sketch18.addConstraint([
    Sketcher.Constraint("Coincident", 0, 2, 1, 1),
    Sketcher.Constraint("Coincident", 1, 2, 2, 1),
    Sketcher.Constraint("Coincident", 2, 2, 3, 1),
    Sketcher.Constraint("Coincident", 3, 2, 0, 1),
    Sketcher.Constraint("Coincident", 4, 2, 5, 1),
    Sketcher.Constraint("Coincident", 5, 2, 6, 1),
    Sketcher.Constraint("Coincident", 6, 2, 7, 1),
    Sketcher.Constraint("Coincident", 7, 2, 4, 1),
    Sketcher.Constraint("Coincident", 8, 2, 9, 1),
    Sketcher.Constraint("Coincident", 9, 2, 10, 1),
    Sketcher.Constraint("Coincident", 10, 2, 11, 1),
    Sketcher.Constraint("Coincident", 11, 2, 8, 1),
    Sketcher.Constraint("Coincident", 12, 2, 13, 1),
    Sketcher.Constraint("Coincident", 13, 2, 14, 1),
    Sketcher.Constraint("Coincident", 14, 2, 15, 1),
    Sketcher.Constraint("Coincident", 15, 2, 12, 1),
    Sketcher.Constraint("Coincident", 16, 2, 17, 1),
    Sketcher.Constraint("Coincident", 17, 2, 18, 1),
    Sketcher.Constraint("Coincident", 18, 2, 19, 1),
    Sketcher.Constraint("Coincident", 19, 2, 16, 1),
    Sketcher.Constraint("Coincident", 20, 2, 21, 1),
    Sketcher.Constraint("Coincident", 21, 2, 22, 1),
    Sketcher.Constraint("Coincident", 22, 2, 23, 1),
    Sketcher.Constraint("Coincident", 23, 2, 20, 1),
    Sketcher.Constraint("Vertical", 0),
    Sketcher.Constraint("Horizontal", 1),
    Sketcher.Constraint("Vertical", 2),
    Sketcher.Constraint("Horizontal", 3),
    Sketcher.Constraint("Vertical", 4),
    Sketcher.Constraint("Horizontal", 5),
    Sketcher.Constraint("Vertical", 6),
    Sketcher.Constraint("Horizontal", 7),
    Sketcher.Constraint("Vertical", 8),
    Sketcher.Constraint("Horizontal", 9),
    Sketcher.Constraint("Vertical", 10),
    Sketcher.Constraint("Horizontal", 11),
    Sketcher.Constraint("Vertical", 12),
    Sketcher.Constraint("Horizontal", 13),
    Sketcher.Constraint("Vertical", 14),
    Sketcher.Constraint("Horizontal", 15),
    Sketcher.Constraint("Vertical", 16),
    Sketcher.Constraint("Horizontal", 17),
    Sketcher.Constraint("Vertical", 18),
    Sketcher.Constraint("Horizontal", 19),
    Sketcher.Constraint("Vertical", 20),
    Sketcher.Constraint("Horizontal", 21),
    Sketcher.Constraint("Vertical", 22),
    Sketcher.Constraint("Horizontal", 23),
    Sketcher.Constraint("PointOnObject", 0, 2, -2),
    Sketcher.Constraint("PointOnObject", 4, 2, -2),
    Sketcher.Constraint("PointOnObject", 8, 2, -2),
    Sketcher.Constraint("Horizontal", 13, 2, 16, 2),
    Sketcher.Constraint("Horizontal", 15, 2, 18, 2),
    Sketcher.Constraint("Horizontal", 17, 2, 20, 2),
    Sketcher.Constraint("Horizontal", 19, 2, 22, 2),
    Sketcher.Constraint("Vertical", 2, 2, 5, 2),
    Sketcher.Constraint("Vertical", 6, 2, 9, 2),
    Sketcher.Constraint("Equal", 15, 17),
    Sketcher.Constraint("Equal", 19, 21),
    Sketcher.Constraint("Equal", 23, 0),
    Sketcher.Constraint("Equal", 2, 4),
    Sketcher.Constraint("Equal", 6, 8),
    Sketcher.Constraint("Equal", 11, 12),
    Sketcher.Constraint("DistanceX", 1, 1, 1, 2, Q("2 mm")),
    Sketcher.Constraint("DistanceX", 13, 1, 13, 2, Q("8 mm")),
    Sketcher.Constraint("DistanceY", 0, 2, -1, 1, Q("9 mm")),
    Sketcher.Constraint("DistanceY", 4, 2, -1, 1, Q("26 mm")),
    Sketcher.Constraint("DistanceY", 8, 2, -1, 1, Q("43 mm")),
    Sketcher.Constraint("DistanceX", -1, 1, 12, 2, Q("9 mm")),
    Sketcher.Constraint("DistanceY", 12, 2, -1, 1, Q("58 mm")),
    Sketcher.Constraint("DistanceX", -1, 1, 16, 2, Q("26 mm")),
    Sketcher.Constraint("DistanceX", -1, 1, 20, 2, Q("43 mm")),
])
pocket10 = body.newObject("PartDesign::Pocket", "Pocket009")
pocket10.Profile = sketch18
pocket10.Length = 2
pocket10.Reversed = True

doc.recompute()
